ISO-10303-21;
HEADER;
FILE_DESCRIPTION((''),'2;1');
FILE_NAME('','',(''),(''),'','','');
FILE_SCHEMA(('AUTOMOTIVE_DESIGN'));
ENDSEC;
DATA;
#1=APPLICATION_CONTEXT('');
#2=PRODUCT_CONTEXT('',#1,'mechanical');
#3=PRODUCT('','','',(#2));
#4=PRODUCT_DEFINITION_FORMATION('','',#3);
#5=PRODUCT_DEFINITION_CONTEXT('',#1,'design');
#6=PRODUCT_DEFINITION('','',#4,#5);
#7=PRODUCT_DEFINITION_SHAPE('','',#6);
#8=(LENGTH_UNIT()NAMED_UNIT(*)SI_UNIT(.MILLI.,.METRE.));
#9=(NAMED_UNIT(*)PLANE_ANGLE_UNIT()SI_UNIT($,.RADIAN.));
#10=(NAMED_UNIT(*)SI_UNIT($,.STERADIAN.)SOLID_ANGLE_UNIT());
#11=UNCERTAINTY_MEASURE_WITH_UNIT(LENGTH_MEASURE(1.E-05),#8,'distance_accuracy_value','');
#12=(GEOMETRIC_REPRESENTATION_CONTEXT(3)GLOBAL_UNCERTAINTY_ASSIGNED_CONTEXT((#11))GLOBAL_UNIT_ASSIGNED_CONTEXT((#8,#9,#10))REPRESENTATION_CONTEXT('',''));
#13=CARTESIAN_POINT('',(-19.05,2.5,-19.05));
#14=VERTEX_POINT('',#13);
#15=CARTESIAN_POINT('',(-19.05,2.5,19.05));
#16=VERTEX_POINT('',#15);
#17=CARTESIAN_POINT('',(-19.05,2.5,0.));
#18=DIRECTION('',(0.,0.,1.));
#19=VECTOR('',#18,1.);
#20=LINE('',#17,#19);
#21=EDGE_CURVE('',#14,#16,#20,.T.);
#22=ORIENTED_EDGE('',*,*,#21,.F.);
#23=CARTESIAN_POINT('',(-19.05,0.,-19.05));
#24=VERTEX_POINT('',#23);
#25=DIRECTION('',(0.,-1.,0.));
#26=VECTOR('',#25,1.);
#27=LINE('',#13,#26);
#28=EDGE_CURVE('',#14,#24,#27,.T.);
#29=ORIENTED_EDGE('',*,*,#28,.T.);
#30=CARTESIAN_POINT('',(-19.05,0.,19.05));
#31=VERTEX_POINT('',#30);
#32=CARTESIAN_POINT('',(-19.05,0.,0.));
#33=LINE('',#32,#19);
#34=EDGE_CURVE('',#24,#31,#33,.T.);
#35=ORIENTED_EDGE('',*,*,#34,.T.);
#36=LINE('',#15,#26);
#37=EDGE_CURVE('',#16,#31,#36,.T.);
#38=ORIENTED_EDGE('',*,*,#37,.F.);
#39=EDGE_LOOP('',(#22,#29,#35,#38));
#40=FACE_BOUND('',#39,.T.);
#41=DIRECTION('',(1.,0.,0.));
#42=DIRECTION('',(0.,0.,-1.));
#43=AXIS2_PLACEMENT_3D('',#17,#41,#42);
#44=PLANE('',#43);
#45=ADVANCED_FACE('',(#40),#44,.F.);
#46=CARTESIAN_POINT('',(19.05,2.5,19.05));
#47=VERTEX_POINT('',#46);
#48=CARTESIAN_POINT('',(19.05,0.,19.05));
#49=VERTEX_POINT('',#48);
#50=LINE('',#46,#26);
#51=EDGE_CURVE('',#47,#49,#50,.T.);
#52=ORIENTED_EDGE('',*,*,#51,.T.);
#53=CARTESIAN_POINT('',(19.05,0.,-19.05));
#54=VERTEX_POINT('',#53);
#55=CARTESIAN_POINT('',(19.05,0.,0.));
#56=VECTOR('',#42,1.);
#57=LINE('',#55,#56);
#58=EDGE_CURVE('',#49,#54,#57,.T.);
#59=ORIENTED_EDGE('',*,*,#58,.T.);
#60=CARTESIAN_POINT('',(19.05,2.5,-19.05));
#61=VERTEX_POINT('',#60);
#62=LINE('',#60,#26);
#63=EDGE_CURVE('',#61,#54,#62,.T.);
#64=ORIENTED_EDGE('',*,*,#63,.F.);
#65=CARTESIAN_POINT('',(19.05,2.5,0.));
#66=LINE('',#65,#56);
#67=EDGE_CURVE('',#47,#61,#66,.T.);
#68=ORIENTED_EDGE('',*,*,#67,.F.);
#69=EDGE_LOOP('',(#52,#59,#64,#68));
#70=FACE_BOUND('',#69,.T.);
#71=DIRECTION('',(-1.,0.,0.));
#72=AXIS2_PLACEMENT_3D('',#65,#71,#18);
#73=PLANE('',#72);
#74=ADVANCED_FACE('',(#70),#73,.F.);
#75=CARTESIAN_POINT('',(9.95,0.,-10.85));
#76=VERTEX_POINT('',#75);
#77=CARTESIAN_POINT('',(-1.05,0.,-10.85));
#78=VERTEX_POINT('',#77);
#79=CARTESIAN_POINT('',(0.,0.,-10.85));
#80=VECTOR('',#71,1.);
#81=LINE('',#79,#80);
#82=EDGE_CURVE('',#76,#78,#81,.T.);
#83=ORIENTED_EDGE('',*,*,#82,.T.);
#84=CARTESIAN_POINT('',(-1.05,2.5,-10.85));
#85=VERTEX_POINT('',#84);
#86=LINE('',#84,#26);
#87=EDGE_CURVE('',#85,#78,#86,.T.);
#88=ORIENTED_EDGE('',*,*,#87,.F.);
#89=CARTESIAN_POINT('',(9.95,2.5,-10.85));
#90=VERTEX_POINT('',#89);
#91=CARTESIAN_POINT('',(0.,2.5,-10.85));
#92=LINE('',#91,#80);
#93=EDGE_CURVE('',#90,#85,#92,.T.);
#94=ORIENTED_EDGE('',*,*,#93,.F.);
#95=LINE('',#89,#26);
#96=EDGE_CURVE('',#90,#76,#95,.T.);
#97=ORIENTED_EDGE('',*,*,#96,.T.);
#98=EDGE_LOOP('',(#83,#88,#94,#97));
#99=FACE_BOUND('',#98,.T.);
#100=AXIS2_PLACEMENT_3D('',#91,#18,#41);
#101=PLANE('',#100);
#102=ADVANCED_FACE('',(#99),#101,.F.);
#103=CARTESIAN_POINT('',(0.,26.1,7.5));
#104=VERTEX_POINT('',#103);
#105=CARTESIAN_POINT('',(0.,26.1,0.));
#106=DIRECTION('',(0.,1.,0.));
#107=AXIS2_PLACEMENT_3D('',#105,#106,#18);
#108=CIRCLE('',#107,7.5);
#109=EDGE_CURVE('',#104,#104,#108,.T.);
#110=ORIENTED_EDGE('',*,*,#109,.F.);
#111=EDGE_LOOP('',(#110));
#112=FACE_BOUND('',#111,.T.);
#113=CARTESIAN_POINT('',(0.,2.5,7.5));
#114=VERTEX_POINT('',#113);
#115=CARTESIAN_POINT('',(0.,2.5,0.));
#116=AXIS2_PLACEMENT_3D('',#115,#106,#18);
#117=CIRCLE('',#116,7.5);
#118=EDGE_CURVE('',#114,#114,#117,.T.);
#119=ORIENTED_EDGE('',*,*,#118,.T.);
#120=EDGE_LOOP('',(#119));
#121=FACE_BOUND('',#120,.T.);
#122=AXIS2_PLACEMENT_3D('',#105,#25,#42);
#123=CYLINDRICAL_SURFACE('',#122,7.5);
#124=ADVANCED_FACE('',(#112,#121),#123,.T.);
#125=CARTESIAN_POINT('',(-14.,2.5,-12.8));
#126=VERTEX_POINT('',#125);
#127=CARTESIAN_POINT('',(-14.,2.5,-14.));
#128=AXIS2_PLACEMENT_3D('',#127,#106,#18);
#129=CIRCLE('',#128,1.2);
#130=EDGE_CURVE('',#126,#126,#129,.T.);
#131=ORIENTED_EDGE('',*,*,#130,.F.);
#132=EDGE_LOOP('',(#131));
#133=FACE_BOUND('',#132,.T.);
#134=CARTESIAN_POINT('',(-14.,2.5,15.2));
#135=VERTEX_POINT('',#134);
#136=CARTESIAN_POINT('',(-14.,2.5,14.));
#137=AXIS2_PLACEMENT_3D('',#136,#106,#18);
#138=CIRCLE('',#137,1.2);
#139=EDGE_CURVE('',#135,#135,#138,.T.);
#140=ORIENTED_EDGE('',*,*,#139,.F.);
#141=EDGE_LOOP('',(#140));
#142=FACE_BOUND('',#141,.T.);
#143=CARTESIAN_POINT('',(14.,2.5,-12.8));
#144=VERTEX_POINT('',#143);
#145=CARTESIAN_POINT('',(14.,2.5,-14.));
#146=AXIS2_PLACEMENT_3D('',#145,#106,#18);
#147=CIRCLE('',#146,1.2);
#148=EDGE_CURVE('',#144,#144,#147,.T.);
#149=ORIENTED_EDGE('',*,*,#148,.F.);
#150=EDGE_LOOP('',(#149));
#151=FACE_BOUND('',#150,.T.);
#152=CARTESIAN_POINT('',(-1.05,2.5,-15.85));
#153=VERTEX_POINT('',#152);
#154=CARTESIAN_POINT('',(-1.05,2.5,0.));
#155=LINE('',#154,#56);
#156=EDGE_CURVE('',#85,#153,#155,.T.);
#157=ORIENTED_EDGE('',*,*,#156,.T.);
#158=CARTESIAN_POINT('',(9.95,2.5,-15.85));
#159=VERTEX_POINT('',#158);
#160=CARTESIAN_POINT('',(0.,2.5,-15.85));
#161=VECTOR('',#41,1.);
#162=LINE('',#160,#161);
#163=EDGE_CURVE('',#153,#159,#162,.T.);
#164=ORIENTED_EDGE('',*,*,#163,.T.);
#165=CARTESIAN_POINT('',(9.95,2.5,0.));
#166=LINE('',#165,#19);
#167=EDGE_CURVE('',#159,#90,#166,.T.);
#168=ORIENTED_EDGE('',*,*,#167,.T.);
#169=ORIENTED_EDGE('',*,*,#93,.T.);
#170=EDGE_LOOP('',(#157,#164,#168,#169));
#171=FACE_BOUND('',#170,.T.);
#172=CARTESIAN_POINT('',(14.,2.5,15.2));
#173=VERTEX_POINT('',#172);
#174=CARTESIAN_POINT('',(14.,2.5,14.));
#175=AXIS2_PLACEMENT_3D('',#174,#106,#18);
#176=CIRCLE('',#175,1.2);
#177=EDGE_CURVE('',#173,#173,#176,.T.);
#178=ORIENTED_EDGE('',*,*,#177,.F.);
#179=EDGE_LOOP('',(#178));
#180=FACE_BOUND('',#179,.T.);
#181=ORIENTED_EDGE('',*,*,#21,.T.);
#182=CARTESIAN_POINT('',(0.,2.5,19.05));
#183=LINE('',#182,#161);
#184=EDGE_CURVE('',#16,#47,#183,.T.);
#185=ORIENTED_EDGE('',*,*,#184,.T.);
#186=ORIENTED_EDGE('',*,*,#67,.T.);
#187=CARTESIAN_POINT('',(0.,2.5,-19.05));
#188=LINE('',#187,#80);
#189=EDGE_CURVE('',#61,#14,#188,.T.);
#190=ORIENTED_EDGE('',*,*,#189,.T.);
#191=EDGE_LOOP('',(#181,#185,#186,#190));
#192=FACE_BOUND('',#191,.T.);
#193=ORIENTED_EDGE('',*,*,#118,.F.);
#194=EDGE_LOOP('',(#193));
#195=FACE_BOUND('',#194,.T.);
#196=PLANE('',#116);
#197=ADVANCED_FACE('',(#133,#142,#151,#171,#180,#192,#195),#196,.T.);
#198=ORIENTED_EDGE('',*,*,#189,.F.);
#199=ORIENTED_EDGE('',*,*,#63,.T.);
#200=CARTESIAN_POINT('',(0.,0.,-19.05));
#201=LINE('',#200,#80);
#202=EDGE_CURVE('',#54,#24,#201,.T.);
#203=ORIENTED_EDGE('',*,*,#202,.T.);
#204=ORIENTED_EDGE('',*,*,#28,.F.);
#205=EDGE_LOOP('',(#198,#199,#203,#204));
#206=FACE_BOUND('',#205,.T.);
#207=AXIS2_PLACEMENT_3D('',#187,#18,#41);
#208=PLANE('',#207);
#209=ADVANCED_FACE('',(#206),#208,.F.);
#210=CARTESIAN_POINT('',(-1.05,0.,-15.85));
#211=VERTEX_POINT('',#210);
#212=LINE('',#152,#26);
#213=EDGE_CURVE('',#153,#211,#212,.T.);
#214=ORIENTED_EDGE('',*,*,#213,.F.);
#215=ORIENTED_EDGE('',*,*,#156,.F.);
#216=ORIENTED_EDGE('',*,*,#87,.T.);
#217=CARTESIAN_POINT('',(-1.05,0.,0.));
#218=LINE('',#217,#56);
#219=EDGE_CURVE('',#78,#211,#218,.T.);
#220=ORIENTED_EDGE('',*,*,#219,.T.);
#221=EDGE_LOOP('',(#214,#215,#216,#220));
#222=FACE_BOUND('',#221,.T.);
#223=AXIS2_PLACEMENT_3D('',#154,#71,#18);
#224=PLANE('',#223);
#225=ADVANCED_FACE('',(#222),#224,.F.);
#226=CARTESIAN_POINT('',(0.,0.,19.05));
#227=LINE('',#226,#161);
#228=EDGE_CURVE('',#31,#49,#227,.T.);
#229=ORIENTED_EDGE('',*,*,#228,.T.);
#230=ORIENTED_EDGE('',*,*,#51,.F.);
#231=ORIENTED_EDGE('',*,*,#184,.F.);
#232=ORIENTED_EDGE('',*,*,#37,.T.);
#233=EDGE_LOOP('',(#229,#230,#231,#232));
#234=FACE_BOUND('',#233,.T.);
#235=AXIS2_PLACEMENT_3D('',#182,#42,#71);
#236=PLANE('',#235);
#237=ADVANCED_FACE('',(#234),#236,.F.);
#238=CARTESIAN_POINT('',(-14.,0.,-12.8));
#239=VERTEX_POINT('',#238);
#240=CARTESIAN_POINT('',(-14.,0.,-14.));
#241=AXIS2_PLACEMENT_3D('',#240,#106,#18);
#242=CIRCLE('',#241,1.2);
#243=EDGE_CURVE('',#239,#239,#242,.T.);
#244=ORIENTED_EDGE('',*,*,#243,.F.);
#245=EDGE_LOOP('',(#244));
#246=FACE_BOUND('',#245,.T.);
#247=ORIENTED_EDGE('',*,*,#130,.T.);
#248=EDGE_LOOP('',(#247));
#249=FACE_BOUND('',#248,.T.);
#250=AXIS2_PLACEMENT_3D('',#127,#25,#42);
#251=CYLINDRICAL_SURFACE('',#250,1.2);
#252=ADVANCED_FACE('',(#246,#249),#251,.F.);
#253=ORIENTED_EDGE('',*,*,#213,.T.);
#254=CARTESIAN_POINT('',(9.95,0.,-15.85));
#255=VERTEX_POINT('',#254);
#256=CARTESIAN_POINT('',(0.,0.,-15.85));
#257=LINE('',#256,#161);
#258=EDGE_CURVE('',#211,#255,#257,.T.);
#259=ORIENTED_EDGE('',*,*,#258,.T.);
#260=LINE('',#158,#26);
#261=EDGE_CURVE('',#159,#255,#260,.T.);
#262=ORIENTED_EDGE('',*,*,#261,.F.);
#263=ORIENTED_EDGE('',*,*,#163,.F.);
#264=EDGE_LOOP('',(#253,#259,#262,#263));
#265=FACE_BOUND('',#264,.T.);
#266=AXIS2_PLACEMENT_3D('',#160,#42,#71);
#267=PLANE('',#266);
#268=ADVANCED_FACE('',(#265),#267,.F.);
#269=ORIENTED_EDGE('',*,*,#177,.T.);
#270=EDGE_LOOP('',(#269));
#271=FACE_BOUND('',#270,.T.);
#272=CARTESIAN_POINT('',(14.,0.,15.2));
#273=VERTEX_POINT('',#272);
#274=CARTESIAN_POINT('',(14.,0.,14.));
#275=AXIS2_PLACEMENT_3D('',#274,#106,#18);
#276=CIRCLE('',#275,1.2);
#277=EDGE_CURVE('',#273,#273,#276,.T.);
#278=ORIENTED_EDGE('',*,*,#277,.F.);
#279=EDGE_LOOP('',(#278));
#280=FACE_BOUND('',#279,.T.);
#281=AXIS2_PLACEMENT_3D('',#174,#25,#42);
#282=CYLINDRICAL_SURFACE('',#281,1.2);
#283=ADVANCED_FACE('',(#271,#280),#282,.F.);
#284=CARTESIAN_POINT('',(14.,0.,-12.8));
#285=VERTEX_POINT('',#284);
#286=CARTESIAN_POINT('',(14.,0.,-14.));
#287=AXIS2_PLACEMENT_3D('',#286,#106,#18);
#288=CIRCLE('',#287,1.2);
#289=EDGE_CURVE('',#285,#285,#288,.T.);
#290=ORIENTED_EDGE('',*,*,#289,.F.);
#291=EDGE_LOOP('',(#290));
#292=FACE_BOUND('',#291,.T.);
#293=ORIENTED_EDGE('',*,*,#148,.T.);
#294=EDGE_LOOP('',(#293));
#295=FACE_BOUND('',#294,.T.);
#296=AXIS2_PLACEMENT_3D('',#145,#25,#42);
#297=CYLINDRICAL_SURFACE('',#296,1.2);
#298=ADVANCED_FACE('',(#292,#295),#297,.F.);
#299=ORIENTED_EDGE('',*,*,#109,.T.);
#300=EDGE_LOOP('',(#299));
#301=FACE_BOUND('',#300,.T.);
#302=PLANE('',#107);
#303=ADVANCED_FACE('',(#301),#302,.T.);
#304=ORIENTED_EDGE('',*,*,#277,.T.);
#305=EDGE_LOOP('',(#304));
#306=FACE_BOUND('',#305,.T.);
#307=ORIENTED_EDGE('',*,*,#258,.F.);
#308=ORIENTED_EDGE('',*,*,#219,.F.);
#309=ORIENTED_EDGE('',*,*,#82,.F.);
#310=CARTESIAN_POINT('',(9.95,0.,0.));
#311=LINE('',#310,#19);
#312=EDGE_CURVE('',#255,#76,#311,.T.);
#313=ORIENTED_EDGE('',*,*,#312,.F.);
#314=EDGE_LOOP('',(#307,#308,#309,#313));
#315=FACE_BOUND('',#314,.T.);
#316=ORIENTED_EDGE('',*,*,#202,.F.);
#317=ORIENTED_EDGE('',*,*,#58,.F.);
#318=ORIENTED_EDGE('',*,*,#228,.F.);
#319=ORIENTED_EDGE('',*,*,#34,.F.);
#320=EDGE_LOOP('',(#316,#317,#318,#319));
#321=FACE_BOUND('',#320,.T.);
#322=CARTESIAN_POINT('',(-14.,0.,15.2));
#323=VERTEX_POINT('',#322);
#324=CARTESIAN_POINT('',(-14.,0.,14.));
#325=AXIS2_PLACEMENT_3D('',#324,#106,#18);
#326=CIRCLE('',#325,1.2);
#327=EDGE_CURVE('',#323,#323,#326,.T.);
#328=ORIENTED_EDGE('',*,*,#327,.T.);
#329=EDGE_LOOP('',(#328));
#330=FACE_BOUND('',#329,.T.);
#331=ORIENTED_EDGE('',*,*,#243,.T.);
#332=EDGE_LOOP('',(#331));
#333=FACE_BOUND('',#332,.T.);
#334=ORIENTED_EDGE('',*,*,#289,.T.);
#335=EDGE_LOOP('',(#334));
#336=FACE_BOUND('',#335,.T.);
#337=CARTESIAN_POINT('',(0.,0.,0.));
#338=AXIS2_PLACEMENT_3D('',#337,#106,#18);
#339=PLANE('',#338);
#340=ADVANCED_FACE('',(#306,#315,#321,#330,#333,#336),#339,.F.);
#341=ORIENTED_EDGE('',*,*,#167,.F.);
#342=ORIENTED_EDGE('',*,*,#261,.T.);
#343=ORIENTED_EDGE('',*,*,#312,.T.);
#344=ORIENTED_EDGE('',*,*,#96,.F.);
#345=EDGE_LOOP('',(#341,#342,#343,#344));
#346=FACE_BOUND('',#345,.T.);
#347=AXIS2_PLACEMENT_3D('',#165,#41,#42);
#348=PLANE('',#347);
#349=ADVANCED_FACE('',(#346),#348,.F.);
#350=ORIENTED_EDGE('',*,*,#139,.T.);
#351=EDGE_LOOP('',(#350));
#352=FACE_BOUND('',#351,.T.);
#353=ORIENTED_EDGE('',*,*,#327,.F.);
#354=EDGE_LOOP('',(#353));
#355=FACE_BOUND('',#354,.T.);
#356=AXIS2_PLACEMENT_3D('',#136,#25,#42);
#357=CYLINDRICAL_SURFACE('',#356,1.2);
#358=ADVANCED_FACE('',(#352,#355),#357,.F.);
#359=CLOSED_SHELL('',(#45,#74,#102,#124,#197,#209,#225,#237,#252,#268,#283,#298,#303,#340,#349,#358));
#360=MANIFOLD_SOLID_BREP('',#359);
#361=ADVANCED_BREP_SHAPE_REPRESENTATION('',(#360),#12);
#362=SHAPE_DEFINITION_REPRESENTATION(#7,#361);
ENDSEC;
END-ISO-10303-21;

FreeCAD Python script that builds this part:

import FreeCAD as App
import Part
import Sketcher

V = App.Vector
Q = App.Units.Quantity

doc = App.newDocument("Part")
body = doc.addObject("PartDesign::Body", "Body")

# Sketch on XZ plane
sketch1 = doc.addObject("Sketcher::SketchObject", "Sketch")
body.addObject(sketch1)
sketch1.AttachmentSupport = (doc.XZ_Plane, [""])
sketch1.MapMode = "FlatFace"
sketch1.addGeometry([
    Part.LineSegment(V(-19.1, -19.1, 0), V(-19.1, 19.1, 0)),  # 0
    Part.LineSegment(V(-19.1, 19.1, 0), V(19.1, 19.1, 0)),  # 1
    Part.LineSegment(V(19.1, 19.1, 0), V(19.1, -19.1, 0)),  # 2
    Part.LineSegment(V(19.1, -19.1, 0), V(-19.1, -19.1, 0)),  # 3
    Part.Circle(V(-14, 14, 0), V(0, 0, 1), 1.2),  # 4
    Part.Circle(V(0, 0, 0), V(0, 0, 1), 7.5),  # 5
    Part.Circle(V(14, 14, 0), V(0, 0, 1), 1.2),  # 6
    Part.Circle(V(-14, -14, 0), V(0, 0, 1), 1.2),  # 7
    Part.LineSegment(V(9.9, -10.8, 0), V(-1.1, -10.8, 0)),  # 8
    Part.LineSegment(V(-1.1, -10.8, 0), V(-1.1, -15.8, 0)),  # 9
    Part.LineSegment(V(-1.1, -15.8, 0), V(9.9, -15.8, 0)),  # 10
    Part.LineSegment(V(9.9, -15.8, 0), V(9.9, -10.8, 0)),  # 11
    Part.Circle(V(14, -14, 0), V(0, 0, 1), 1.2),  # 12
], False)
sketch1.addConstraint([
    Sketcher.Constraint("Coincident", 0, 2, 1, 1),
    Sketcher.Constraint("Coincident", 1, 2, 2, 1),
    Sketcher.Constraint("Coincident", 2, 2, 3, 1),
    Sketcher.Constraint("Coincident", 3, 2, 0, 1),
    Sketcher.Constraint("Coincident", 8, 2, 9, 1),
    Sketcher.Constraint("Coincident", 9, 2, 10, 1),
    Sketcher.Constraint("Coincident", 10, 2, 11, 1),
    Sketcher.Constraint("Coincident", 11, 2, 8, 1),
    Sketcher.Constraint("Vertical", 0),
    Sketcher.Constraint("Horizontal", 1),
    Sketcher.Constraint("Vertical", 2),
    Sketcher.Constraint("Horizontal", 3),
    Sketcher.Constraint("Horizontal", 8),
    Sketcher.Constraint("Vertical", 9),
    Sketcher.Constraint("Horizontal", 10),
    Sketcher.Constraint("Vertical", 11),
    Sketcher.Constraint("Coincident", 5, 3, -1, 1),
    Sketcher.Constraint("Equal", 4, 6),
    Sketcher.Constraint("Equal", 6, 7),
    Sketcher.Constraint("Equal", 7, 12),
    Sketcher.Constraint("Symmetric", 6, 3, 7, 3, -1, 1),
    Sketcher.Constraint("Symmetric", 4, 3, 12, 3, -1, 1),
    Sketcher.Constraint("Symmetric", 0, 2, 2, 2, -1, 1),
    Sketcher.Constraint("Symmetric", 4, 3, 6, 3, -2),
    Sketcher.Constraint("Equal", 3, 0),
    Sketcher.Constraint("Diameter", 5, Q("15 mm")),
    Sketcher.Constraint("Diameter", 4, Q("2.4 mm")),
    Sketcher.Constraint("DistanceX", 8, 2, 8, 1, Q("11 mm")),
    Sketcher.Constraint("DistanceY", 9, 2, 9, 1, Q("5 mm")),
    Sketcher.Constraint("DistanceX", 1, 1, 1, 2, Q("38.1 mm")),
    Sketcher.Constraint("DistanceX", 4, 3, -1, 1, Q("14 mm")),
    Sketcher.Constraint("DistanceY", -1, 1, 4, 3, Q("14 mm")),
    Sketcher.Constraint("DistanceX", 3, 2, 8, 2, Q("18 mm")),
    Sketcher.Constraint("DistanceY", 3, 2, 8, 2, Q("8.2 mm")),
])
pad1 = doc.addObject("PartDesign::Pad", "Pad")
body.addObject(pad1)
pad1.Profile = sketch1
pad1.Length = 2.5
pad1.Reversed = True

# Sketch on XZ plane
sketch2 = doc.addObject("Sketcher::SketchObject", "Sketch001")
body.addObject(sketch2)
sketch2.AttachmentSupport = (doc.XZ_Plane, [""])
sketch2.MapMode = "FlatFace"
sketch2.addGeometry(Part.Circle(V(0, 0, 0), V(0, 0, 1), 8), False)
sketch2.addConstraint([
    Sketcher.Constraint("Coincident", 0, 3, -1, 1),
    Sketcher.Constraint("Diameter", 0, Q("15 mm")),
])
pad2 = doc.addObject("PartDesign::Pad", "Pad001")
body.addObject(pad2)
pad2.Profile = sketch2
pad2.Length = 26.1
pad2.Reversed = True

doc.recompute()
